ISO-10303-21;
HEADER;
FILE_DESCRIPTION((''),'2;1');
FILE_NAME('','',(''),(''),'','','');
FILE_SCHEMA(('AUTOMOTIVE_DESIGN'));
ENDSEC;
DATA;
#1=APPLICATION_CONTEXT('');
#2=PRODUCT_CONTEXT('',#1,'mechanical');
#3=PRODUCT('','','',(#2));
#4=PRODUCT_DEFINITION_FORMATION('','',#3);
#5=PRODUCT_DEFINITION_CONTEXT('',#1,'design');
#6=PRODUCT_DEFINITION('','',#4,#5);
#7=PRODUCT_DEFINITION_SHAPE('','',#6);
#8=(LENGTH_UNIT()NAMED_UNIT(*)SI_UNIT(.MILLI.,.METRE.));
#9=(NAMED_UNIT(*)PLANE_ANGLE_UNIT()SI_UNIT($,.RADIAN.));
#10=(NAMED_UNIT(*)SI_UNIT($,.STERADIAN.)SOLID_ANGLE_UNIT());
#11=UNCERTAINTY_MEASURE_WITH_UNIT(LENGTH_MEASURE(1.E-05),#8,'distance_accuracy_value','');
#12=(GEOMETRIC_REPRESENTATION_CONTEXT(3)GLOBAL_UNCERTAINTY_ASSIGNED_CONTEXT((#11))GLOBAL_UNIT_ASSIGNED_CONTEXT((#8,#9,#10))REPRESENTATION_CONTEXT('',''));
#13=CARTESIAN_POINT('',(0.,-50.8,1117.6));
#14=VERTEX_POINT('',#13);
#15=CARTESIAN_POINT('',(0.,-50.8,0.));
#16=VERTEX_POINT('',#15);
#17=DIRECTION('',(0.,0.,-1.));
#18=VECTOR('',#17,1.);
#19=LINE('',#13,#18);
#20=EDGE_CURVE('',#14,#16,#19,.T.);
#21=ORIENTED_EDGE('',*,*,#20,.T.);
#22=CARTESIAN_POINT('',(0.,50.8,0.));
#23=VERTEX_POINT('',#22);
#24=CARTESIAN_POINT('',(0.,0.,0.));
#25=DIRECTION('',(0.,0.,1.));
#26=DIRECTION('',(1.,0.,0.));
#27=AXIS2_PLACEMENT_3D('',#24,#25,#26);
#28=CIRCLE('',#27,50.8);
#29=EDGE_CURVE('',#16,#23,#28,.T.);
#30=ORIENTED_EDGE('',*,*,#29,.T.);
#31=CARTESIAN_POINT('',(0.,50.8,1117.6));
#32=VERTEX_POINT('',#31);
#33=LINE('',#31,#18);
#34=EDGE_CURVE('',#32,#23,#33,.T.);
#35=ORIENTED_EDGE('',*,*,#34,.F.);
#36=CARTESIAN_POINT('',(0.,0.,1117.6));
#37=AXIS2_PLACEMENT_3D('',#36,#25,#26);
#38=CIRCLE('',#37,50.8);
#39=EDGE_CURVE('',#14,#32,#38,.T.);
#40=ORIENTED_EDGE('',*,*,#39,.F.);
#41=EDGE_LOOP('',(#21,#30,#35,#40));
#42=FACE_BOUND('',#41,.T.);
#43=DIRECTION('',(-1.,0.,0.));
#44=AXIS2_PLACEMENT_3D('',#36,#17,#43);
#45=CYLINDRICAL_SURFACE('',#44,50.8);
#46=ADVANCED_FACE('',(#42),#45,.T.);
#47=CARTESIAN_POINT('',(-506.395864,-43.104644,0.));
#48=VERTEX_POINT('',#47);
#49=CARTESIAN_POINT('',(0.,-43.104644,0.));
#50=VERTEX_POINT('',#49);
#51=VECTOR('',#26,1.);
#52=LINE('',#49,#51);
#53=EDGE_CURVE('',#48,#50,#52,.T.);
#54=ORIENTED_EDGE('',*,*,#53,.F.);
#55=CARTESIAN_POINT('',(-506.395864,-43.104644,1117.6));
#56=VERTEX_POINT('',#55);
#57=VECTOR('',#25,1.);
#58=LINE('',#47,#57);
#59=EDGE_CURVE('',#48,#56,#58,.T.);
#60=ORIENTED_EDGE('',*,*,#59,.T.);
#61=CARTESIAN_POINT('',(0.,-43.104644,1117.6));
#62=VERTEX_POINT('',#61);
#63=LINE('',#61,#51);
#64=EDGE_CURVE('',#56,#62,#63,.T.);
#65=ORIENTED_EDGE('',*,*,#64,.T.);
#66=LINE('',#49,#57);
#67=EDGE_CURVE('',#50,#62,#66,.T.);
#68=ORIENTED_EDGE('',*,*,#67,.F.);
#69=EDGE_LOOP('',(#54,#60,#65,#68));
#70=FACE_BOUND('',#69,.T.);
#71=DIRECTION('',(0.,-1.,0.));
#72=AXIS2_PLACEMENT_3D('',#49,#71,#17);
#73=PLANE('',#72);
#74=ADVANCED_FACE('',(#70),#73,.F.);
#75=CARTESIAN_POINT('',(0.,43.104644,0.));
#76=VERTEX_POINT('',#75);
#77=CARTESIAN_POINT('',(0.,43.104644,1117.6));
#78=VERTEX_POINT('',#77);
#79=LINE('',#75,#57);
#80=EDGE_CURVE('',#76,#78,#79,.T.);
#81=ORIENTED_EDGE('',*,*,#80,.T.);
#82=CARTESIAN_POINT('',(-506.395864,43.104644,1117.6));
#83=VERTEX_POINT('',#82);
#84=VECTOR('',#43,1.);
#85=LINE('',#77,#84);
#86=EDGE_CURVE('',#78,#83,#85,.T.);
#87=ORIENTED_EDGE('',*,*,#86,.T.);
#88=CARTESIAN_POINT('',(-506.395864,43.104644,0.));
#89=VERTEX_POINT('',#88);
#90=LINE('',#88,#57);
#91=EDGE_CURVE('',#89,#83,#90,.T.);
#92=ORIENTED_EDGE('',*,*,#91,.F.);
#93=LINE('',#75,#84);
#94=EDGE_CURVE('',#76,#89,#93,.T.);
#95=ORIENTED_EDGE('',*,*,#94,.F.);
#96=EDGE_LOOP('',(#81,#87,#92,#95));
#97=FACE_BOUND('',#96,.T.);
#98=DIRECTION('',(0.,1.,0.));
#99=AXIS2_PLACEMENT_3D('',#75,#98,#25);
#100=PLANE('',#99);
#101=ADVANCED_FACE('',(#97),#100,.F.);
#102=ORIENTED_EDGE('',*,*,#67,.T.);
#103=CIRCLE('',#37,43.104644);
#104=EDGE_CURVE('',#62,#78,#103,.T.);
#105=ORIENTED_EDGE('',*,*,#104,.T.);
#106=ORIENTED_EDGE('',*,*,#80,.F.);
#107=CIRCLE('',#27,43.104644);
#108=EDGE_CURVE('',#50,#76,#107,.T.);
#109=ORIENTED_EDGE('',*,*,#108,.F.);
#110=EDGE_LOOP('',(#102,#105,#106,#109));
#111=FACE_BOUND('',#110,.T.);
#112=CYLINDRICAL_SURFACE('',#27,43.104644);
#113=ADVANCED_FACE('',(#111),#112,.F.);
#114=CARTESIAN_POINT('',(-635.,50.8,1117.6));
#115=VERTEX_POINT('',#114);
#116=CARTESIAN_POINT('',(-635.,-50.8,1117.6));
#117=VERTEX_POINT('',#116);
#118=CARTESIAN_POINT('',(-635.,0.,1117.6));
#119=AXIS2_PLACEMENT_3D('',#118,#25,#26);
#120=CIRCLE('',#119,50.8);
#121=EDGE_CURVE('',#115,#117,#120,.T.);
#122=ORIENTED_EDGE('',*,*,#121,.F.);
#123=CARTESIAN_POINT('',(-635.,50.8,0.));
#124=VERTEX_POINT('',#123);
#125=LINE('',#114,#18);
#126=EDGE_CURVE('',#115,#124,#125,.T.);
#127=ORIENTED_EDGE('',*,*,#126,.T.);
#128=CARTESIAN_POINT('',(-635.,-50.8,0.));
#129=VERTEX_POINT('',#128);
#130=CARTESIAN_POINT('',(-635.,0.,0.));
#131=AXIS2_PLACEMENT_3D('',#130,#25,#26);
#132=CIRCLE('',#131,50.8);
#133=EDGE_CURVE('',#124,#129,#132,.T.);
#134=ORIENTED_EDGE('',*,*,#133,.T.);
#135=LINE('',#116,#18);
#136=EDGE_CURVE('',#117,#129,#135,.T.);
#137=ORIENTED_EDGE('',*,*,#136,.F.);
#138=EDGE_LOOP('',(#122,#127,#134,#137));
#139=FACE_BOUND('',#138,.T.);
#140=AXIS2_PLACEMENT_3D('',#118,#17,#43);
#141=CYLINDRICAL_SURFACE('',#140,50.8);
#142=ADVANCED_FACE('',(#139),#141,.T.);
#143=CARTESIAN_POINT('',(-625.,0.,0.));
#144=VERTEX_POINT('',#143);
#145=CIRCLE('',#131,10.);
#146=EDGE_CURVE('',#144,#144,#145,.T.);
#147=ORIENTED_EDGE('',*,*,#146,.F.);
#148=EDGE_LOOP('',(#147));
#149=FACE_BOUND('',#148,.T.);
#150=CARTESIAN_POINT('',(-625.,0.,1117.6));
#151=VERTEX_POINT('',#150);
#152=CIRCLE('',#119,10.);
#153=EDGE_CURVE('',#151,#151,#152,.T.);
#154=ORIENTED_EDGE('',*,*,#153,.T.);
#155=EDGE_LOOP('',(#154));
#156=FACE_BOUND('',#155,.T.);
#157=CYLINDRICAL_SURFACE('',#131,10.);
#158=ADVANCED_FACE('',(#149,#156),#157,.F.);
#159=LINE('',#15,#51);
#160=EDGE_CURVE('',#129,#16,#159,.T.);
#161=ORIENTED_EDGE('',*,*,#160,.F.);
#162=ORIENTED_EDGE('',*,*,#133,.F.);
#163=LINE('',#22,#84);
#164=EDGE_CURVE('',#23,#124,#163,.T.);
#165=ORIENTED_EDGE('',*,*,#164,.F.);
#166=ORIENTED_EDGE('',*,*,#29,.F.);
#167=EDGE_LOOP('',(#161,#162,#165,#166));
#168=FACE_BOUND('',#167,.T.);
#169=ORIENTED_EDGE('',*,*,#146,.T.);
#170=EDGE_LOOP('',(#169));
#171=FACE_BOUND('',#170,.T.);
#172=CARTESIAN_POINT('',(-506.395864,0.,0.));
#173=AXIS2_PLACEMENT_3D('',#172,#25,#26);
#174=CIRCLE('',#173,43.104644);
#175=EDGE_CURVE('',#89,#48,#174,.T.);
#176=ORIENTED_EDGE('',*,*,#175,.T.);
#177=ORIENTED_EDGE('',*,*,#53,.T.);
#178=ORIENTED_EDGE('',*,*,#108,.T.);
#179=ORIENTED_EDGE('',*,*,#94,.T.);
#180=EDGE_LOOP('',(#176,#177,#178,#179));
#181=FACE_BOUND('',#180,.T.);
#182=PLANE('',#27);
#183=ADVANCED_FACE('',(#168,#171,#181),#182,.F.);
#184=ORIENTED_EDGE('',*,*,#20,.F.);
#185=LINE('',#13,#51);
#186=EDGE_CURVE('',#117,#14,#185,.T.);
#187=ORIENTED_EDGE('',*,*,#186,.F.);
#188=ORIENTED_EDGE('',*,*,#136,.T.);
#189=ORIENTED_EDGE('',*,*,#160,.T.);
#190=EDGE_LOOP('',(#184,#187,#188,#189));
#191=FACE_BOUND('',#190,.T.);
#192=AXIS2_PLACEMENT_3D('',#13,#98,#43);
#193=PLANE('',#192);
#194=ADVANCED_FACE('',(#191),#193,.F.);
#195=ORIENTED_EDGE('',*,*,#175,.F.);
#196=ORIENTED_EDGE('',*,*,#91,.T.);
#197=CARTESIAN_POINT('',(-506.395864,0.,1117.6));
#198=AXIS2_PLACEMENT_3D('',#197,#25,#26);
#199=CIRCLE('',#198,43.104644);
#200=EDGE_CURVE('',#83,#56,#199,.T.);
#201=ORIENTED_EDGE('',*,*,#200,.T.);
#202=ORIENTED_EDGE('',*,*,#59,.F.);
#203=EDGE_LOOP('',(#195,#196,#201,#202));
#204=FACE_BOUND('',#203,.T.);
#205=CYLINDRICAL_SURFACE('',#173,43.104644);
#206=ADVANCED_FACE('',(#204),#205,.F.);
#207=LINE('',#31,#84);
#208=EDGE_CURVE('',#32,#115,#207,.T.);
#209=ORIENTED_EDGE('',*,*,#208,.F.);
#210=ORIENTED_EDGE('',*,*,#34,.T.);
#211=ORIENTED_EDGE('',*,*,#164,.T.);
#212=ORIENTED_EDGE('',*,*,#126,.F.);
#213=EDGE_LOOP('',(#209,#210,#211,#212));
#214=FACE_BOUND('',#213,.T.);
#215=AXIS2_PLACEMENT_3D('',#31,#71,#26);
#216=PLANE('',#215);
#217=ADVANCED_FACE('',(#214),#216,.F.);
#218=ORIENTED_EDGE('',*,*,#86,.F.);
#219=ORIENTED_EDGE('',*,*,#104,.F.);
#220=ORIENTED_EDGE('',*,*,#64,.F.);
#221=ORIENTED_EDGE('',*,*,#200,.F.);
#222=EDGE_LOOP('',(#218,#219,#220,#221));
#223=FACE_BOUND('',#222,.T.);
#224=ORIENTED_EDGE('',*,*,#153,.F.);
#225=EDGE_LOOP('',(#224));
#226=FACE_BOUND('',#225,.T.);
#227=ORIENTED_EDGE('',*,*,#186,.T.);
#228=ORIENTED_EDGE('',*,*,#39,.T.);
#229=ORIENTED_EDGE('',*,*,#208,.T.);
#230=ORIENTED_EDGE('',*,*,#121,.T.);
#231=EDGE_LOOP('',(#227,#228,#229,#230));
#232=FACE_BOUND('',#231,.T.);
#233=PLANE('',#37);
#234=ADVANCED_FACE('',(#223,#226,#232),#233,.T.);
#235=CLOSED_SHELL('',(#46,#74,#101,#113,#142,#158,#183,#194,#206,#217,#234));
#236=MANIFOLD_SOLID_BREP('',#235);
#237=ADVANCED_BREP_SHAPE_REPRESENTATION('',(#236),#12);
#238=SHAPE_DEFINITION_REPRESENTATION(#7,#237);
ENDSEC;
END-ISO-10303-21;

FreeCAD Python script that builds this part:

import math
import FreeCAD as App
import Part
import Sketcher
Q = App.Units.Quantity

doc = App.newDocument("Part")
params = doc.addObject("Spreadsheet::Sheet", "Params")
for row, (alias, value) in enumerate([
    ("sketch1_radius", "2 in"),
    ("sketch1_width", "25 in"),
    ("pad1_length", "44 in"),
    ("pocket1_length", "44 in"),
], start=1):
    params.set(f"A{row}", alias)
    params.set(f"B{row}", "=" + value)
    params.setAlias(f"B{row}", alias)

body = doc.addObject("PartDesign::Body", "Body")

# Sketch on XY plane
sketch1 = doc.addObject("Sketcher::SketchObject", "Sketch")
body.addObject(sketch1)
sketch1.AttachmentSupport = (doc.XY_Plane, [""])
sketch1.MapMode = "FlatFace"
sketch1.addGeometry([
    Part.LineSegment(App.Vector(-635, -50.8, 0), App.Vector(0, -50.8, 0)),
    Part.ArcOfCircle(Part.Circle(App.Vector(0, 0, 0), App.Vector(0, 0, 1), 50.8), math.radians(-90), math.radians(90)),
    Part.LineSegment(App.Vector(0, 50.8, 0), App.Vector(-635, 50.8, 0)),
    Part.ArcOfCircle(Part.Circle(App.Vector(-635, 0, 0), App.Vector(0, 0, 1), 50.8), math.radians(90), math.radians(270)),
], False)
sketch1.addConstraint([
    Sketcher.Constraint("Tangent", 0, 2, 1, 1),
    Sketcher.Constraint("Tangent", 1, 2, 2, 1),
    Sketcher.Constraint("Tangent", 2, 2, 3, 1),
    Sketcher.Constraint("Tangent", 3, 2, 0, 1),
    Sketcher.Constraint("Horizontal", 0),
    Sketcher.Constraint("Horizontal", 2),
    Sketcher.Constraint("Coincident", 1, 3, -1, 1),
    Sketcher.Constraint("Radius", 1, Q("2 in")),
    Sketcher.Constraint("DistanceX", 0, 1, 0, 2, Q("25 in")),
])
sketch1.setExpression("Constraints[7]", "Params.sketch1_radius")
sketch1.setExpression("Constraints[8]", "Params.sketch1_width")
pad1 = doc.addObject("PartDesign::Pad", "Pad")
body.addObject(pad1)
pad1.Profile = sketch1
pad1.setExpression("Length", "Params.pad1_length")

# Sketch on XY plane
sketch2 = doc.addObject("Sketcher::SketchObject", "Sketch001")
body.addObject(sketch2)
sketch2.AttachmentSupport = (doc.XY_Plane, [""])
sketch2.MapMode = "FlatFace"
sketch2.AttachmentOffset = App.Placement(App.Vector(0, 0, 44 * 25.4), App.Rotation())
sketch2.addGeometry([
    Part.Circle(App.Vector(-635, 0, 0), App.Vector(0, 0, 1), 10),  # 0
    Part.LineSegment(App.Vector(-506.395864, -43.104644, 0), App.Vector(0, -43.104644, 0)),  # 1
    Part.ArcOfCircle(Part.Circle(App.Vector(0, 0, 0), App.Vector(0, 0, 1), 43.104644), math.radians(-90), math.radians(90)),  # 2
    Part.LineSegment(App.Vector(0, 43.104644, 0), App.Vector(-506.395864, 43.104644, 0)),  # 3
    Part.ArcOfCircle(Part.Circle(App.Vector(-506.395864, 0, 0), App.Vector(0, 0, 1), 43.104644), math.radians(90), math.radians(270)),  # 4
], False)
sketch2.addConstraint([
    Sketcher.Constraint("Tangent", 1, 2, 2, 1),
    Sketcher.Constraint("Tangent", 2, 2, 3, 1),
    Sketcher.Constraint("Tangent", 3, 2, 4, 1),
    Sketcher.Constraint("Tangent", 4, 2, 1, 1),
    Sketcher.Constraint("Horizontal", 1),
    Sketcher.Constraint("Horizontal", 3),
    Sketcher.Constraint("Coincident", 2, 3, -1, 1),
    Sketcher.Constraint("PointOnObject", 0, 3, -1),
    Sketcher.Constraint("DistanceX", 0, 3, -1, 1, Q("25 in")),
    Sketcher.Constraint("Diameter", 0, Q("20 mm")),
    Sketcher.Constraint("Radius", 2, Q("43.104644 mm")),
    Sketcher.Constraint("DistanceX", 1, 1, 1, 2, Q("506.395864 mm")),
])
pocket1 = doc.addObject("PartDesign::Pocket", "Pocket")
body.addObject(pocket1)
pocket1.Profile = sketch2
pocket1.setExpression("Length", "Params.pocket1_length")

doc.recompute()
